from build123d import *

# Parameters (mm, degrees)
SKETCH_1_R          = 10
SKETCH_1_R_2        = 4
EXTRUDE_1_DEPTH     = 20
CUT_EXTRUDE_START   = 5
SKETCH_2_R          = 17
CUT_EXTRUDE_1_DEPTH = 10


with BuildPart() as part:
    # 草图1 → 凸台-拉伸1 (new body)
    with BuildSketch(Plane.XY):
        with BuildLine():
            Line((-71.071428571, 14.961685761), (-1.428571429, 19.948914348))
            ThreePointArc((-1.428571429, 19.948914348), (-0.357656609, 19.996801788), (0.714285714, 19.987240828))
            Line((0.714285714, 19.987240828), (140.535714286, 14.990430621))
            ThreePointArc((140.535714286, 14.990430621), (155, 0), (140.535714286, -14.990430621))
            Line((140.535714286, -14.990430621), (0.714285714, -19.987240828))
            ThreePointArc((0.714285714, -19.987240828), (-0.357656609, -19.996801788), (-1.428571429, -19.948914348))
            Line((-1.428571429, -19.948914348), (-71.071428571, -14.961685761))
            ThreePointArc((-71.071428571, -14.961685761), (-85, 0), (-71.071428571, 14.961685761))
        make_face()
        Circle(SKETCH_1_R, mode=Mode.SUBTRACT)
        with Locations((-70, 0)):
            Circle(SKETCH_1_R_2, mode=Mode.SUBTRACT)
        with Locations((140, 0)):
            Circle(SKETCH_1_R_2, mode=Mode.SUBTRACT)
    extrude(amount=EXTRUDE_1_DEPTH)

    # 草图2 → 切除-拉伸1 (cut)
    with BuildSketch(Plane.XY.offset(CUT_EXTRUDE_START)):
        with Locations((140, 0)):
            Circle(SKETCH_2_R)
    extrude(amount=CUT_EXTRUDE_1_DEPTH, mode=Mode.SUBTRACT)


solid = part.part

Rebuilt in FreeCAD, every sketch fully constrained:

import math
import FreeCAD as App
import Part
import Sketcher

V = App.Vector

doc = App.newDocument("Part")
params = doc.addObject("Spreadsheet::Sheet", "Params")
for row, (alias, value) in enumerate([
    ("sketch1_diameter", "8 mm"),
    ("sketch1_diameter2", "20 mm"),
    ("sketch1_radius", "15 mm"),
    ("sketch1_radius2", "20 mm"),
    ("pad1_length", "20 mm"),
    ("sketch2_diameter", "34 mm"),
    ("pocket1_length", "10 mm"),
], start=1):
    params.set(f"A{row}", alias)
    params.set(f"B{row}", "=" + value)
    params.setAlias(f"B{row}", alias)

body = doc.addObject("PartDesign::Body", "Body")

# Sketch on XY plane
sketch1 = doc.addObject("Sketcher::SketchObject", "Sketch")
body.addObject(sketch1)
sketch1.AttachmentSupport = (doc.XY_Plane, [""])
sketch1.MapMode = "FlatFace"
sketch1.addGeometry([
    Part.LineSegment(V(-1.4, 19.9, 0), V(-71.1, 15, 0)),  # 0
    Part.ArcOfCircle(Part.Circle(V(-70, 0, 0), V(0, 0, 1), 15), math.radians(94), math.radians(266)),  # 1
    Part.LineSegment(V(-71.1, -15, 0), V(-1.4, -19.9, 0)),  # 2
    Part.ArcOfCircle(Part.Circle(V(0, 0, 0), V(0, 0, 1), 20), math.radians(-94.1), math.radians(-87.95)),  # 3
    Part.LineSegment(V(0.7, -20, 0), V(140.5, -15, 0)),  # 4
    Part.ArcOfCircle(Part.Circle(V(140, 0, 0), V(0, 0, 1), 15), math.radians(-88), math.radians(88)),  # 5
    Part.LineSegment(V(140.5, 15, 0), V(0.7, 20, 0)),  # 6
    Part.ArcOfCircle(Part.Circle(V(0, 0, 0), V(0, 0, 1), 20), math.radians(87.95), math.radians(94.1)),  # 7
    Part.Circle(V(140, 0, 0), V(0, 0, 1), 4),  # 8
    Part.Circle(V(0, 0, 0), V(0, 0, 1), 10),  # 9
    Part.Circle(V(-70, 0, 0), V(0, 0, 1), 4),  # 10
], False)
sketch1.addConstraint([
    Sketcher.Constraint("Tangent", 0, 2, 1, 1),
    Sketcher.Constraint("Tangent", 1, 2, 2, 1),
    Sketcher.Constraint("Tangent", 2, 2, 3, 1),
    Sketcher.Constraint("Tangent", 3, 2, 4, 1),
    Sketcher.Constraint("Tangent", 4, 2, 5, 1),
    Sketcher.Constraint("Tangent", 5, 2, 6, 1),
    Sketcher.Constraint("Tangent", 6, 2, 7, 1),
    Sketcher.Constraint("Tangent", 7, 2, 0, 1),
    Sketcher.Constraint("Coincident", 3, 3, -1, 1),
    Sketcher.Constraint("Coincident", 7, 3, -1, 1),
    Sketcher.Constraint("Coincident", 9, 3, -1, 1),
    Sketcher.Constraint("Coincident", 8, 3, 5, 3),
    Sketcher.Constraint("Coincident", 10, 3, 1, 3),
    Sketcher.Constraint("Equal", 1, 5),
    Sketcher.Constraint("Equal", 3, 7),
    Sketcher.Constraint("Equal", 8, 10),
    Sketcher.Constraint("PointOnObject", 1, 3, -1),
    Sketcher.Constraint("PointOnObject", 5, 3, -1),
    Sketcher.Constraint("Diameter", 8, 8.0),
    Sketcher.Constraint("Diameter", 9, 20.0),
    Sketcher.Constraint("Radius", 1, 15.0),
    Sketcher.Constraint("Radius", 3, 20.0),
    Sketcher.Constraint("DistanceX", 1, 3, -1, 1, 70.0),
    Sketcher.Constraint("DistanceX", -1, 1, 5, 3, 140.0),
])
sketch1.setExpression("Constraints[18]", "Params.sketch1_diameter")
sketch1.setExpression("Constraints[19]", "Params.sketch1_diameter2")
sketch1.setExpression("Constraints[20]", "Params.sketch1_radius")
sketch1.setExpression("Constraints[21]", "Params.sketch1_radius2")
pad1 = doc.addObject("PartDesign::Pad", "Pad")
body.addObject(pad1)
pad1.Profile = sketch1
pad1.setExpression("Length", "Params.pad1_length")

# Sketch on XY plane
sketch2 = doc.addObject("Sketcher::SketchObject", "Sketch001")
body.addObject(sketch2)
sketch2.AttachmentSupport = (doc.XY_Plane, [""])
sketch2.MapMode = "FlatFace"
sketch2.AttachmentOffset = App.Placement(V(0, 0, 5), App.Rotation())
sketch2.addGeometry(Part.Circle(V(140, 0, 0), V(0, 0, 1), 17), False)
sketch2.addConstraint([
    Sketcher.Constraint("PointOnObject", 0, 3, -1),
    Sketcher.Constraint("Diameter", 0, 34.0),
    Sketcher.Constraint("DistanceX", -1, 1, 0, 3, 140.0),
])
sketch2.setExpression("Constraints[1]", "Params.sketch2_diameter")
pocket1 = doc.addObject("PartDesign::Pocket", "Pocket")
body.addObject(pocket1)
pocket1.Profile = sketch2
pocket1.setExpression("Length", "Params.pocket1_length")
pocket1.Reversed = True

doc.recompute()
